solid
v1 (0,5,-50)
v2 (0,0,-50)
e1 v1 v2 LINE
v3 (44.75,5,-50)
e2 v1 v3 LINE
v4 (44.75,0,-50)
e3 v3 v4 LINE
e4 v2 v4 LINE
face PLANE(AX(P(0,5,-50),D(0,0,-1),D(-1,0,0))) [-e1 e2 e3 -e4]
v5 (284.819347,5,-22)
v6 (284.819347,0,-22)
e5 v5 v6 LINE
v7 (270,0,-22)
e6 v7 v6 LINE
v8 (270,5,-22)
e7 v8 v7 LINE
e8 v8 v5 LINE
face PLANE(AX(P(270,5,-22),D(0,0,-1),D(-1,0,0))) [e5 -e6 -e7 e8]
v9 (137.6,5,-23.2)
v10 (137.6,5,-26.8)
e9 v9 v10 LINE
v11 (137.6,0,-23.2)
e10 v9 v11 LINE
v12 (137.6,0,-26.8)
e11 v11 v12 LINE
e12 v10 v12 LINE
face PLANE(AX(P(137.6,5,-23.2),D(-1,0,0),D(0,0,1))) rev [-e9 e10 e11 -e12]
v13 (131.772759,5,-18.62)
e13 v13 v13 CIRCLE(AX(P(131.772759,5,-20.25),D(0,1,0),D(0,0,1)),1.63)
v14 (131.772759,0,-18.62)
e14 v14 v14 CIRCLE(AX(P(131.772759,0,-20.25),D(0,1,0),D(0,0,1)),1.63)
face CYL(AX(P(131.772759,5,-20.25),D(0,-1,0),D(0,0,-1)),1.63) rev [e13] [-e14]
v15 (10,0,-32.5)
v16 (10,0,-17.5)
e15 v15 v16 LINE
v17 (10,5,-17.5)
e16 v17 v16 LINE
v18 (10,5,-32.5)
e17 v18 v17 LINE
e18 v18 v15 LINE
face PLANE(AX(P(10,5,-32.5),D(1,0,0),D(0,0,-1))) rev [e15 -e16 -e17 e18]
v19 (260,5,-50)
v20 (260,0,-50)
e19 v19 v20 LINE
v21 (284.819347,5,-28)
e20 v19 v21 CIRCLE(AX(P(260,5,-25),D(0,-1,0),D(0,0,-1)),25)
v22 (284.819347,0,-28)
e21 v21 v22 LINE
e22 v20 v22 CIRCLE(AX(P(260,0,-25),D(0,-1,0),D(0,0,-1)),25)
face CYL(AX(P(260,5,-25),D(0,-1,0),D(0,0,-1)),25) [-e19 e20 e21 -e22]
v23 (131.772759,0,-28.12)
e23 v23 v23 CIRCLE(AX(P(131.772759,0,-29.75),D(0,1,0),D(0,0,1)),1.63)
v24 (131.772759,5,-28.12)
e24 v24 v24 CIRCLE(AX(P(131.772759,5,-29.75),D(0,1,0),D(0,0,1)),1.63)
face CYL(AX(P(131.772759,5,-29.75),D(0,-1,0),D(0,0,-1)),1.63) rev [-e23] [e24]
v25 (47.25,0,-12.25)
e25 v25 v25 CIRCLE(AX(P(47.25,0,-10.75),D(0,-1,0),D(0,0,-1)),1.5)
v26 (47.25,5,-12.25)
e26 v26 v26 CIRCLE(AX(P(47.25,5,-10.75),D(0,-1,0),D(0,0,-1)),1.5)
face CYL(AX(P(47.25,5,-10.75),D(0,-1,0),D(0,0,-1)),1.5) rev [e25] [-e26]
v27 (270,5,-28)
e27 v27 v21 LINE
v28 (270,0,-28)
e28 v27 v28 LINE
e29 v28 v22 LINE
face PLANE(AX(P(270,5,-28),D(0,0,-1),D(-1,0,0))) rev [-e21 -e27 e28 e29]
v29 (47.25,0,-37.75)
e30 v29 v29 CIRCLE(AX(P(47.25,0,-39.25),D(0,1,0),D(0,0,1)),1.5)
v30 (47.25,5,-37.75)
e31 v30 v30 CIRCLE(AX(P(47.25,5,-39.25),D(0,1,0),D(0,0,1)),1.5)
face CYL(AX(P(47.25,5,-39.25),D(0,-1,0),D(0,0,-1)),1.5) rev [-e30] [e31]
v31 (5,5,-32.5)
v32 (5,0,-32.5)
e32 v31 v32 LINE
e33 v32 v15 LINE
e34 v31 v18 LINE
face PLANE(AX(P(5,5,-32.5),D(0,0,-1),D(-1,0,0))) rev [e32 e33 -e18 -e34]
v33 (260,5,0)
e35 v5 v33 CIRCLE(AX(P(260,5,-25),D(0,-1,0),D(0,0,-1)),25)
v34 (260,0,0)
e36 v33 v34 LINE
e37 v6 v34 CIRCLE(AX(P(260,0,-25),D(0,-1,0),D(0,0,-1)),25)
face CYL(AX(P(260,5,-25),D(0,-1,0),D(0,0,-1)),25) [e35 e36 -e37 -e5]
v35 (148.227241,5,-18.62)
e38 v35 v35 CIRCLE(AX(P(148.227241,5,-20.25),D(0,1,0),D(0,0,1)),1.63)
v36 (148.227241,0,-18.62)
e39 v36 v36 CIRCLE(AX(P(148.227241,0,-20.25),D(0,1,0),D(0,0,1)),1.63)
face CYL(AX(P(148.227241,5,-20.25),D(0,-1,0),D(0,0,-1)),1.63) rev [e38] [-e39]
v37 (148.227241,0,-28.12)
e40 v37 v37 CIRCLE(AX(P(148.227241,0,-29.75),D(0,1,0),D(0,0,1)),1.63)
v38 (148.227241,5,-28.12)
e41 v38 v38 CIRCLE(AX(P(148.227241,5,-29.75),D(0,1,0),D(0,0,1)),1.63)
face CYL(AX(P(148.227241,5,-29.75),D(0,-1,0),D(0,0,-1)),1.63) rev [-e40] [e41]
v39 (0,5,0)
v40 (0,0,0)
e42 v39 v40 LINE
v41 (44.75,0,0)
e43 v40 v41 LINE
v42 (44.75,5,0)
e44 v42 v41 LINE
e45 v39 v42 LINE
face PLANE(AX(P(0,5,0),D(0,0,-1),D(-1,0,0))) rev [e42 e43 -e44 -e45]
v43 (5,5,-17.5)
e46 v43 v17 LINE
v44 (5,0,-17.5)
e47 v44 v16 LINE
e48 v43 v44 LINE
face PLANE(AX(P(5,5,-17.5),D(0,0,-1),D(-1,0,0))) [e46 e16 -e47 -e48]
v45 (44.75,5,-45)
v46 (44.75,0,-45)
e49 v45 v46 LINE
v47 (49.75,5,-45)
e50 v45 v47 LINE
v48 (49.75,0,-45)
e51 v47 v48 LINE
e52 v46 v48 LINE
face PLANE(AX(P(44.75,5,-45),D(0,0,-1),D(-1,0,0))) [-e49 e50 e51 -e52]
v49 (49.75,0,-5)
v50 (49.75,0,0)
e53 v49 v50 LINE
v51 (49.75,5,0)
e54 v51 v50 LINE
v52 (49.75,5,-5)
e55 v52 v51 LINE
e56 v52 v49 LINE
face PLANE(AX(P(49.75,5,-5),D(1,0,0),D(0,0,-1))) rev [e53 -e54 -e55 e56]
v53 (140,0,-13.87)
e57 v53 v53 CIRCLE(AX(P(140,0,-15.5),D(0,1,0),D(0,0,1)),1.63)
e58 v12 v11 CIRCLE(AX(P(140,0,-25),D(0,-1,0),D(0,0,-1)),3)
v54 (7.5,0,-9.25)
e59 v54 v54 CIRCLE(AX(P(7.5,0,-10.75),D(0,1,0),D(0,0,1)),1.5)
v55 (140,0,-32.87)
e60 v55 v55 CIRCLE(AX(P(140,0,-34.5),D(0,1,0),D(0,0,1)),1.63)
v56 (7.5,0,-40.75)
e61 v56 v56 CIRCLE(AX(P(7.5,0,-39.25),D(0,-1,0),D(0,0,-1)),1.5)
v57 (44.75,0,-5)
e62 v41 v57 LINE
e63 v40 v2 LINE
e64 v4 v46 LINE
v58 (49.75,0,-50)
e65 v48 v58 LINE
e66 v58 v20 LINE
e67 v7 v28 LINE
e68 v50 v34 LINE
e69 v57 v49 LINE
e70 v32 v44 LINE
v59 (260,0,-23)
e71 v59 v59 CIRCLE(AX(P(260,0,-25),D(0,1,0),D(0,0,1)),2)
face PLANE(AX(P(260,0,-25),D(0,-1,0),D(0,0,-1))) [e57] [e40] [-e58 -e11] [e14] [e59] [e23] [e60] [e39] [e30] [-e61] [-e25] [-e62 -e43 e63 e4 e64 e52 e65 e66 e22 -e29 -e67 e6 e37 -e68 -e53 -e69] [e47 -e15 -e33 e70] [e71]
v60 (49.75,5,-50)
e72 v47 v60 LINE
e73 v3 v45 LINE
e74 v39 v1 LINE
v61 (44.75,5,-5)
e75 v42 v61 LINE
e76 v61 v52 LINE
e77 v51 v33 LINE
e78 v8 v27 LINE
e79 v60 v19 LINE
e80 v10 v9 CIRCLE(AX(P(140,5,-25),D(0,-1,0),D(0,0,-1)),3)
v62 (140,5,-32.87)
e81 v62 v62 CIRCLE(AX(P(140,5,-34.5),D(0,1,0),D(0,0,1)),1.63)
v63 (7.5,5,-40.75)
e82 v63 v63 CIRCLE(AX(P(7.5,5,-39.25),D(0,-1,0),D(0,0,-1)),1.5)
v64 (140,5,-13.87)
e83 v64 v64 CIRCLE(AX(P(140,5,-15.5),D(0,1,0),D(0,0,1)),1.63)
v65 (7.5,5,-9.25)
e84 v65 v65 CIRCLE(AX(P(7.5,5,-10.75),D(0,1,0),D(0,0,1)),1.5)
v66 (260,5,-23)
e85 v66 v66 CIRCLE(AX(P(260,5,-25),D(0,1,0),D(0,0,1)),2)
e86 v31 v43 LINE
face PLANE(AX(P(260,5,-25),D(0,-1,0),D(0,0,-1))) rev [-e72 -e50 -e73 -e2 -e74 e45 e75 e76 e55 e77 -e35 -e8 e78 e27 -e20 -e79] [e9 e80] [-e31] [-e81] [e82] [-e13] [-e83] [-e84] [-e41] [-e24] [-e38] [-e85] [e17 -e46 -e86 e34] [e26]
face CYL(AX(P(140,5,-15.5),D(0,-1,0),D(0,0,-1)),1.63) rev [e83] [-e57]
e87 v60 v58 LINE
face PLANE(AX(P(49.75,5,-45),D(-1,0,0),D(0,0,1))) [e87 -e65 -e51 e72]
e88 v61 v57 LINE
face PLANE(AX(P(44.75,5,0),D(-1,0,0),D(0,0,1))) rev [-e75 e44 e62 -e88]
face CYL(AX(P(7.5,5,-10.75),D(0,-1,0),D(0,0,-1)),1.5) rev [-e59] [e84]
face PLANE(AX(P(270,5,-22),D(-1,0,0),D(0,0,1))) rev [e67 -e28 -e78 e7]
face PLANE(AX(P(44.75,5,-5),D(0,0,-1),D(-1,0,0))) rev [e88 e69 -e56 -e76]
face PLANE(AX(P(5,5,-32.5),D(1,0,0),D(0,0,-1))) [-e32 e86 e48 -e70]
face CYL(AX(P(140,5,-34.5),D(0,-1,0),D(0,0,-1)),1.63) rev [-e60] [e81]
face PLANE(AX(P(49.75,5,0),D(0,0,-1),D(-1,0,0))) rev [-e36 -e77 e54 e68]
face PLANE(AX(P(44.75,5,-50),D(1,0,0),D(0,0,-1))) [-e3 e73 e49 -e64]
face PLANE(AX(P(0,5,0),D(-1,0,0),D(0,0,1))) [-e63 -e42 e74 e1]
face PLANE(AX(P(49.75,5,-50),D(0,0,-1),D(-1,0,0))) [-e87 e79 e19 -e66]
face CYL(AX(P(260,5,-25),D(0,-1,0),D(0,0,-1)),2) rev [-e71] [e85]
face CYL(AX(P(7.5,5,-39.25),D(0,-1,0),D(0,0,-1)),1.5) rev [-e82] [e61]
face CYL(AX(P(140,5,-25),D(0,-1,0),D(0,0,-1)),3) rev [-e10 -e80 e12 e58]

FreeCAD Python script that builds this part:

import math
import FreeCAD as App
import Part
import Sketcher
from FreeCAD import Vector
Q = App.Units.Quantity


def add_polygon(sketch, points):
    """Adds a closed chain of lines whose ends are joined by coincident constraints."""
    first, n = sketch.GeometryCount, len(points)
    for a, b in zip(points, points[1:] + points[:1]):
        sketch.addGeometry(Part.LineSegment(App.Vector(*a, 0), App.Vector(*b, 0)), False)
    for i in range(n):
        sketch.addConstraint(Sketcher.Constraint("Coincident", first + i, 2, first + (i + 1) % n, 1))

doc = App.newDocument("Part")
body = doc.addObject("PartDesign::Body", "Body")

# Sketch on XZ plane
sketch1 = body.newObject("Sketcher::SketchObject", "Sketch")
sketch1.AttachmentSupport = (doc.getObject("XZ_Plane"), [""])
sketch1.MapMode = "FlatFace"
sketch1.addGeometry(Part.LineSegment(Vector(0, 0, 0), Vector(44.75, 0, 0)), False)  # 0
sketch1.addGeometry(Part.LineSegment(Vector(44.75, 0, 0), Vector(44.75, -5, 0)), False)  # 1
sketch1.addGeometry(Part.LineSegment(Vector(44.75, -5, 0), Vector(49.75, -5, 0)), False)  # 2
sketch1.addGeometry(Part.LineSegment(Vector(49.75, -5, 0), Vector(49.75, 0, 0)), False)  # 3
sketch1.addGeometry(Part.LineSegment(Vector(49.75, 0, 0), Vector(260, 0, 0)), False)  # 4
sketch1.addGeometry(Part.ArcOfCircle(Part.Circle(Vector(260, -25, 0), Vector(0, 0, 1), 25), math.radians(6.892103), math.radians(90)), False)  # 5
sketch1.addGeometry(Part.LineSegment(Vector(284.819347, -22, 0), Vector(270, -22, 0)), False)  # 6
sketch1.addGeometry(Part.LineSegment(Vector(270, -22, 0), Vector(270, -28, 0)), False)  # 7
sketch1.addGeometry(Part.LineSegment(Vector(270, -28, 0), Vector(284.819347, -28, 0)), False)  # 8
sketch1.addGeometry(Part.ArcOfCircle(Part.Circle(Vector(260, -25, 0), Vector(0, 0, 1), 25), math.radians(-90), math.radians(-6.892103)), False)  # 9
sketch1.addGeometry(Part.LineSegment(Vector(260, -50, 0), Vector(49.75, -50, 0)), False)  # 10
sketch1.addGeometry(Part.LineSegment(Vector(49.75, -50, 0), Vector(49.75, -45, 0)), False)  # 11
sketch1.addGeometry(Part.LineSegment(Vector(49.75, -45, 0), Vector(44.75, -45, 0)), False)  # 12
sketch1.addGeometry(Part.LineSegment(Vector(44.75, -45, 0), Vector(44.75, -50, 0)), False)  # 13
sketch1.addGeometry(Part.LineSegment(Vector(44.75, -50, 0), Vector(0, -50, 0)), False)  # 14
sketch1.addGeometry(Part.LineSegment(Vector(0, -50, 0), Vector(0, 0, 0)), False)  # 15
sketch1.addGeometry(Part.Circle(Vector(7.5, -10.75, 0), Vector(0, 0, 1), 1.5), False)  # 16
sketch1.addGeometry(Part.Circle(Vector(47.25, -10.75, 0), Vector(0, 0, 1), 1.5), False)  # 17
sketch1.addGeometry(Part.Circle(Vector(131.772759, -20.25, 0), Vector(0, 0, 1), 1.63), False)  # 18
sketch1.addGeometry(Part.Circle(Vector(140, -15.5, 0), Vector(0, 0, 1), 1.63), False)  # 19
sketch1.addGeometry(Part.Circle(Vector(148.227241, -20.25, 0), Vector(0, 0, 1), 1.63), False)  # 20
add_polygon(sketch1, [(10, -17.5), (5, -17.5), (5, -32.5), (10, -32.5)])  # lines 21-24
sketch1.addGeometry(Part.Circle(Vector(131.772759, -29.75, 0), Vector(0, 0, 1), 1.63), False)  # 25
sketch1.addGeometry(Part.Circle(Vector(7.5, -39.25, 0), Vector(0, 0, 1), 1.5), False)  # 26
sketch1.addGeometry(Part.Circle(Vector(47.25, -39.25, 0), Vector(0, 0, 1), 1.5), False)  # 27
sketch1.addGeometry(Part.ArcOfCircle(Part.Circle(Vector(140, -25, 0), Vector(0, 0, 1), 3), math.radians(-143.130102), math.radians(143.130102)), False)  # 28
sketch1.addGeometry(Part.LineSegment(Vector(137.6, -23.2, 0), Vector(137.6, -26.8, 0)), False)  # 29
sketch1.addGeometry(Part.Circle(Vector(148.227241, -29.75, 0), Vector(0, 0, 1), 1.63), False)  # 30
sketch1.addGeometry(Part.Circle(Vector(260, -25, 0), Vector(0, 0, 1), 2), False)  # 31
sketch1.addGeometry(Part.Circle(Vector(140, -34.5, 0), Vector(0, 0, 1), 1.63), False)  # 32
sketch1.addConstraint(Sketcher.Constraint("Coincident", 0, 2, 1, 1))
sketch1.addConstraint(Sketcher.Constraint("Coincident", 1, 2, 2, 1))
sketch1.addConstraint(Sketcher.Constraint("Coincident", 2, 2, 3, 1))
sketch1.addConstraint(Sketcher.Constraint("Coincident", 3, 2, 4, 1))
sketch1.addConstraint(Sketcher.Constraint("Tangent", 4, 2, 5, 2))
sketch1.addConstraint(Sketcher.Constraint("Coincident", 5, 1, 6, 1))
sketch1.addConstraint(Sketcher.Constraint("Coincident", 6, 2, 7, 1))
sketch1.addConstraint(Sketcher.Constraint("Coincident", 7, 2, 8, 1))
sketch1.addConstraint(Sketcher.Constraint("Coincident", 8, 2, 9, 2))
sketch1.addConstraint(Sketcher.Constraint("Tangent", 9, 1, 10, 1))
sketch1.addConstraint(Sketcher.Constraint("Coincident", 10, 2, 11, 1))
sketch1.addConstraint(Sketcher.Constraint("Coincident", 11, 2, 12, 1))
sketch1.addConstraint(Sketcher.Constraint("Coincident", 12, 2, 13, 1))
sketch1.addConstraint(Sketcher.Constraint("Coincident", 13, 2, 14, 1))
sketch1.addConstraint(Sketcher.Constraint("Coincident", 14, 2, 15, 1))
sketch1.addConstraint(Sketcher.Constraint("Coincident", 15, 2, 0, 1))
sketch1.addConstraint(Sketcher.Constraint("Coincident", 28, 1, 29, 2))
sketch1.addConstraint(Sketcher.Constraint("Coincident", 29, 1, 28, 2))
sketch1.addConstraint(Sketcher.Constraint("Horizontal", 0))
sketch1.addConstraint(Sketcher.Constraint("Vertical", 1))
sketch1.addConstraint(Sketcher.Constraint("Horizontal", 2))
sketch1.addConstraint(Sketcher.Constraint("Vertical", 3))
sketch1.addConstraint(Sketcher.Constraint("Horizontal", 4))
sketch1.addConstraint(Sketcher.Constraint("Horizontal", 6))
sketch1.addConstraint(Sketcher.Constraint("Vertical", 7))
sketch1.addConstraint(Sketcher.Constraint("Horizontal", 8))
sketch1.addConstraint(Sketcher.Constraint("Horizontal", 10))
sketch1.addConstraint(Sketcher.Constraint("Vertical", 11))
sketch1.addConstraint(Sketcher.Constraint("Horizontal", 12))
sketch1.addConstraint(Sketcher.Constraint("Vertical", 13))
sketch1.addConstraint(Sketcher.Constraint("Horizontal", 14))
sketch1.addConstraint(Sketcher.Constraint("Vertical", 15))
sketch1.addConstraint(Sketcher.Constraint("Horizontal", 21))
sketch1.addConstraint(Sketcher.Constraint("Vertical", 22))
sketch1.addConstraint(Sketcher.Constraint("Horizontal", 23))
sketch1.addConstraint(Sketcher.Constraint("Vertical", 24))
sketch1.addConstraint(Sketcher.Constraint("Vertical", 29))
sketch1.addConstraint(Sketcher.Constraint("Coincident", 15, 2, -1, 1))
sketch1.addConstraint(Sketcher.Constraint("Coincident", 9, 3, 5, 3))
sketch1.addConstraint(Sketcher.Constraint("Coincident", 31, 3, 5, 3))
sketch1.addConstraint(Sketcher.Constraint("Equal", 5, 9))
sketch1.addConstraint(Sketcher.Constraint("Equal", 16, 17))
sketch1.addConstraint(Sketcher.Constraint("Equal", 18, 19))
sketch1.addConstraint(Sketcher.Constraint("Equal", 19, 20))
sketch1.addConstraint(Sketcher.Constraint("Equal", 20, 25))
sketch1.addConstraint(Sketcher.Constraint("Equal", 17, 26))
sketch1.addConstraint(Sketcher.Constraint("Equal", 26, 27))
sketch1.addConstraint(Sketcher.Constraint("Equal", 25, 30))
sketch1.addConstraint(Sketcher.Constraint("Equal", 30, 32))
sketch1.addConstraint(Sketcher.Constraint("PointOnObject", 3, 2, -1))
sketch1.addConstraint(Sketcher.Constraint("Horizontal", 16, 3, 17, 3))
sketch1.addConstraint(Sketcher.Constraint("Horizontal", 18, 3, 20, 3))
sketch1.addConstraint(Sketcher.Constraint("Horizontal", 26, 3, 27, 3))
sketch1.addConstraint(Sketcher.Constraint("Horizontal", 9, 3, 28, 3))
sketch1.addConstraint(Sketcher.Constraint("Horizontal", 25, 3, 30, 3))
sketch1.addConstraint(Sketcher.Constraint("Horizontal", 10, 2, 13, 2))
sketch1.addConstraint(Sketcher.Constraint("Vertical", 18, 3, 25, 3))
sketch1.addConstraint(Sketcher.Constraint("Vertical", 16, 3, 26, 3))
sketch1.addConstraint(Sketcher.Constraint("Vertical", 17, 3, 27, 3))
sketch1.addConstraint(Sketcher.Constraint("Vertical", 19, 3, 28, 3))
sketch1.addConstraint(Sketcher.Constraint("Vertical", 20, 3, 30, 3))
sketch1.addConstraint(Sketcher.Constraint("Vertical", 28, 3, 32, 3))
sketch1.addConstraint(Sketcher.Constraint("Vertical", 5, 1, 8, 2))
sketch1.addConstraint(Sketcher.Constraint("Vertical", 3, 2, 10, 2))
sketch1.addConstraint(Sketcher.Constraint("Vertical", 1, 2, 12, 2))
sketch1.addConstraint(Sketcher.Constraint("Equal", 12, 21))
sketch1.addConstraint(Sketcher.Constraint("Equal", 23, 1))
sketch1.addConstraint(Sketcher.Constraint("Equal", 3, 11))
sketch1.addConstraint(Sketcher.Constraint("Diameter", 16, Q("3 mm")))
sketch1.addConstraint(Sketcher.Constraint("Diameter", 31, Q("4 mm")))
sketch1.addConstraint(Sketcher.Constraint("Radius", 5, Q("25 mm")))
sketch1.addConstraint(Sketcher.Constraint("Radius", 28, Q("3 mm")))
sketch1.addConstraint(Sketcher.Constraint("Diameter", 18, Q("3.26 mm")))
sketch1.addConstraint(Sketcher.Constraint("DistanceX", 2, 1, 2, 2, Q("5 mm")))
sketch1.addConstraint(Sketcher.Constraint("DistanceY", 7, 2, 7, 1, Q("6 mm")))
sketch1.addConstraint(Sketcher.Constraint("DistanceY", 22, 2, 22, 1, Q("15 mm")))
sketch1.addConstraint(Sketcher.Constraint("DistanceY", 29, 2, 29, 1, Q("3.6 mm")))
sketch1.addConstraint(Sketcher.Constraint("DistanceX", -1, 1, 5, 3, Q("260 mm")))
sketch1.addConstraint(Sketcher.Constraint("DistanceX", -1, 1, 19, 3, Q("140 mm")))
sketch1.addConstraint(Sketcher.Constraint("DistanceX", -1, 1, 6, 2, Q("270 mm")))
sketch1.addConstraint(Sketcher.Constraint("DistanceX", -1, 1, 21, 2, Q("5 mm")))
sketch1.addConstraint(Sketcher.Constraint("DistanceY", 25, 3, 17, 3, Q("19 mm")))
sketch1.addConstraint(Sketcher.Constraint("DistanceY", 26, 3, 18, 3, Q("19 mm")))
sketch1.addConstraint(Sketcher.Constraint("DistanceX", 0, 1, 0, 2, Q("44.75 mm")))
sketch1.addConstraint(Sketcher.Constraint("DistanceX", -1, 1, 16, 3, Q("7.5 mm")))
sketch1.addConstraint(Sketcher.Constraint("DistanceY", 19, 3, -1, 1, Q("15.5 mm")))
sketch1.addConstraint(Sketcher.Constraint("DistanceY", 32, 3, -1, 1, Q("34.5 mm")))
sketch1.addConstraint(Sketcher.Constraint("DistanceY", 21, 2, -1, 1, Q("17.5 mm")))
sketch1.addConstraint(Sketcher.Constraint("DistanceY", 18, 3, 17, 3, Q("9.5 mm")))
sketch1.addConstraint(Sketcher.Constraint("DistanceX", 0, 2, 17, 3, Q("2.5 mm")))
sketch1.addConstraint(Sketcher.Constraint("DistanceY", 16, 3, -1, 1, Q("10.75 mm")))
sketch1.addConstraint(Sketcher.Constraint("DistanceX", -1, 1, 18, 3, Q("131.772759 mm")))
sketch1.addConstraint(Sketcher.Constraint("DistanceX", -1, 1, 20, 3, Q("148.227241 mm")))
pad1 = body.newObject("PartDesign::Pad", "Pad")
pad1.Profile = sketch1
pad1.Length = 5
pad1.Reversed = True

doc.recompute()
